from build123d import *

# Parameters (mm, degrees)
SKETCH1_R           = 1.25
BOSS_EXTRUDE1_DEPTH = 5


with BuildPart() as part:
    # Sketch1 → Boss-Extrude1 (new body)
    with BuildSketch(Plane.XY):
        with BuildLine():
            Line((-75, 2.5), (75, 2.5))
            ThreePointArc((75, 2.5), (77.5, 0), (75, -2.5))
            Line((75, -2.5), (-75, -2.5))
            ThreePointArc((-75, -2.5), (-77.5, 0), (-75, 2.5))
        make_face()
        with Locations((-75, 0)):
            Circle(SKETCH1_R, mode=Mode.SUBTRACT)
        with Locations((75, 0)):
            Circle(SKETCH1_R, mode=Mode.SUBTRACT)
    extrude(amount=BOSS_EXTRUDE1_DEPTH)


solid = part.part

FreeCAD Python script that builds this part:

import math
import FreeCAD as App
import Part
import Sketcher

doc = App.newDocument("Part")
params = doc.addObject("Spreadsheet::Sheet", "Params")
for row, (alias, value) in enumerate([
    ("sketch1_diameter", "2.5 mm"),
    ("sketch1_radius", "2.5 mm"),
    ("sketch1_width", "150 mm"),
    ("pad1_length", "5 mm"),
], start=1):
    params.set(f"A{row}", alias)
    params.set(f"B{row}", "=" + value)
    params.setAlias(f"B{row}", alias)

body = doc.addObject("PartDesign::Body", "Body")

sketch1 = body.newObject("Sketcher::SketchObject", "Sketch")
sketch1.AttachmentSupport = (doc.getObject("XY_Plane"), [""])
sketch1.MapMode = "FlatFace"
sketch1.addGeometry([
    Part.LineSegment(App.Vector(75, 2.5, 0), App.Vector(-75, 2.5, 0)),
    Part.ArcOfCircle(Part.Circle(App.Vector(-75, 0, 0), App.Vector(0, 0, 1), 2.5), math.radians(90), math.radians(270)),
    Part.LineSegment(App.Vector(-75, -2.5, 0), App.Vector(75, -2.5, 0)),
    Part.ArcOfCircle(Part.Circle(App.Vector(75, 0, 0), App.Vector(0, 0, 1), 2.5), math.radians(-90), math.radians(90)),
    Part.Circle(App.Vector(75, 0, 0), App.Vector(0, 0, 1), 1.25),
    Part.Circle(App.Vector(-75, 0, 0), App.Vector(0, 0, 1), 1.25),
], False)
sketch1.addConstraint([
    Sketcher.Constraint("Tangent", 0, 2, 1, 1),
    Sketcher.Constraint("Tangent", 1, 2, 2, 1),
    Sketcher.Constraint("Tangent", 2, 2, 3, 1),
    Sketcher.Constraint("Tangent", 3, 2, 0, 1),
    Sketcher.Constraint("Horizontal", 0),
    Sketcher.Constraint("Horizontal", 2),
    Sketcher.Constraint("Coincident", 4, 3, 3, 3),
    Sketcher.Constraint("Coincident", 5, 3, 1, 3),
    Sketcher.Constraint("Equal", 4, 5),
    Sketcher.Constraint("Symmetric", 1, 3, 3, 3, -1, 1),
    Sketcher.Constraint("Diameter", 4, 2.5),
    Sketcher.Constraint("Radius", 1, 2.5),
    Sketcher.Constraint("DistanceX", 0, 2, 0, 1, 150.0),
])
sketch1.setExpression("Constraints[10]", "Params.sketch1_diameter")
sketch1.setExpression("Constraints[11]", "Params.sketch1_radius")
sketch1.setExpression("Constraints[12]", "Params.sketch1_width")
pad1 = body.newObject("PartDesign::Pad", "Pad")
pad1.Profile = sketch1
pad1.setExpression("Length", "Params.pad1_length")

doc.recompute()
